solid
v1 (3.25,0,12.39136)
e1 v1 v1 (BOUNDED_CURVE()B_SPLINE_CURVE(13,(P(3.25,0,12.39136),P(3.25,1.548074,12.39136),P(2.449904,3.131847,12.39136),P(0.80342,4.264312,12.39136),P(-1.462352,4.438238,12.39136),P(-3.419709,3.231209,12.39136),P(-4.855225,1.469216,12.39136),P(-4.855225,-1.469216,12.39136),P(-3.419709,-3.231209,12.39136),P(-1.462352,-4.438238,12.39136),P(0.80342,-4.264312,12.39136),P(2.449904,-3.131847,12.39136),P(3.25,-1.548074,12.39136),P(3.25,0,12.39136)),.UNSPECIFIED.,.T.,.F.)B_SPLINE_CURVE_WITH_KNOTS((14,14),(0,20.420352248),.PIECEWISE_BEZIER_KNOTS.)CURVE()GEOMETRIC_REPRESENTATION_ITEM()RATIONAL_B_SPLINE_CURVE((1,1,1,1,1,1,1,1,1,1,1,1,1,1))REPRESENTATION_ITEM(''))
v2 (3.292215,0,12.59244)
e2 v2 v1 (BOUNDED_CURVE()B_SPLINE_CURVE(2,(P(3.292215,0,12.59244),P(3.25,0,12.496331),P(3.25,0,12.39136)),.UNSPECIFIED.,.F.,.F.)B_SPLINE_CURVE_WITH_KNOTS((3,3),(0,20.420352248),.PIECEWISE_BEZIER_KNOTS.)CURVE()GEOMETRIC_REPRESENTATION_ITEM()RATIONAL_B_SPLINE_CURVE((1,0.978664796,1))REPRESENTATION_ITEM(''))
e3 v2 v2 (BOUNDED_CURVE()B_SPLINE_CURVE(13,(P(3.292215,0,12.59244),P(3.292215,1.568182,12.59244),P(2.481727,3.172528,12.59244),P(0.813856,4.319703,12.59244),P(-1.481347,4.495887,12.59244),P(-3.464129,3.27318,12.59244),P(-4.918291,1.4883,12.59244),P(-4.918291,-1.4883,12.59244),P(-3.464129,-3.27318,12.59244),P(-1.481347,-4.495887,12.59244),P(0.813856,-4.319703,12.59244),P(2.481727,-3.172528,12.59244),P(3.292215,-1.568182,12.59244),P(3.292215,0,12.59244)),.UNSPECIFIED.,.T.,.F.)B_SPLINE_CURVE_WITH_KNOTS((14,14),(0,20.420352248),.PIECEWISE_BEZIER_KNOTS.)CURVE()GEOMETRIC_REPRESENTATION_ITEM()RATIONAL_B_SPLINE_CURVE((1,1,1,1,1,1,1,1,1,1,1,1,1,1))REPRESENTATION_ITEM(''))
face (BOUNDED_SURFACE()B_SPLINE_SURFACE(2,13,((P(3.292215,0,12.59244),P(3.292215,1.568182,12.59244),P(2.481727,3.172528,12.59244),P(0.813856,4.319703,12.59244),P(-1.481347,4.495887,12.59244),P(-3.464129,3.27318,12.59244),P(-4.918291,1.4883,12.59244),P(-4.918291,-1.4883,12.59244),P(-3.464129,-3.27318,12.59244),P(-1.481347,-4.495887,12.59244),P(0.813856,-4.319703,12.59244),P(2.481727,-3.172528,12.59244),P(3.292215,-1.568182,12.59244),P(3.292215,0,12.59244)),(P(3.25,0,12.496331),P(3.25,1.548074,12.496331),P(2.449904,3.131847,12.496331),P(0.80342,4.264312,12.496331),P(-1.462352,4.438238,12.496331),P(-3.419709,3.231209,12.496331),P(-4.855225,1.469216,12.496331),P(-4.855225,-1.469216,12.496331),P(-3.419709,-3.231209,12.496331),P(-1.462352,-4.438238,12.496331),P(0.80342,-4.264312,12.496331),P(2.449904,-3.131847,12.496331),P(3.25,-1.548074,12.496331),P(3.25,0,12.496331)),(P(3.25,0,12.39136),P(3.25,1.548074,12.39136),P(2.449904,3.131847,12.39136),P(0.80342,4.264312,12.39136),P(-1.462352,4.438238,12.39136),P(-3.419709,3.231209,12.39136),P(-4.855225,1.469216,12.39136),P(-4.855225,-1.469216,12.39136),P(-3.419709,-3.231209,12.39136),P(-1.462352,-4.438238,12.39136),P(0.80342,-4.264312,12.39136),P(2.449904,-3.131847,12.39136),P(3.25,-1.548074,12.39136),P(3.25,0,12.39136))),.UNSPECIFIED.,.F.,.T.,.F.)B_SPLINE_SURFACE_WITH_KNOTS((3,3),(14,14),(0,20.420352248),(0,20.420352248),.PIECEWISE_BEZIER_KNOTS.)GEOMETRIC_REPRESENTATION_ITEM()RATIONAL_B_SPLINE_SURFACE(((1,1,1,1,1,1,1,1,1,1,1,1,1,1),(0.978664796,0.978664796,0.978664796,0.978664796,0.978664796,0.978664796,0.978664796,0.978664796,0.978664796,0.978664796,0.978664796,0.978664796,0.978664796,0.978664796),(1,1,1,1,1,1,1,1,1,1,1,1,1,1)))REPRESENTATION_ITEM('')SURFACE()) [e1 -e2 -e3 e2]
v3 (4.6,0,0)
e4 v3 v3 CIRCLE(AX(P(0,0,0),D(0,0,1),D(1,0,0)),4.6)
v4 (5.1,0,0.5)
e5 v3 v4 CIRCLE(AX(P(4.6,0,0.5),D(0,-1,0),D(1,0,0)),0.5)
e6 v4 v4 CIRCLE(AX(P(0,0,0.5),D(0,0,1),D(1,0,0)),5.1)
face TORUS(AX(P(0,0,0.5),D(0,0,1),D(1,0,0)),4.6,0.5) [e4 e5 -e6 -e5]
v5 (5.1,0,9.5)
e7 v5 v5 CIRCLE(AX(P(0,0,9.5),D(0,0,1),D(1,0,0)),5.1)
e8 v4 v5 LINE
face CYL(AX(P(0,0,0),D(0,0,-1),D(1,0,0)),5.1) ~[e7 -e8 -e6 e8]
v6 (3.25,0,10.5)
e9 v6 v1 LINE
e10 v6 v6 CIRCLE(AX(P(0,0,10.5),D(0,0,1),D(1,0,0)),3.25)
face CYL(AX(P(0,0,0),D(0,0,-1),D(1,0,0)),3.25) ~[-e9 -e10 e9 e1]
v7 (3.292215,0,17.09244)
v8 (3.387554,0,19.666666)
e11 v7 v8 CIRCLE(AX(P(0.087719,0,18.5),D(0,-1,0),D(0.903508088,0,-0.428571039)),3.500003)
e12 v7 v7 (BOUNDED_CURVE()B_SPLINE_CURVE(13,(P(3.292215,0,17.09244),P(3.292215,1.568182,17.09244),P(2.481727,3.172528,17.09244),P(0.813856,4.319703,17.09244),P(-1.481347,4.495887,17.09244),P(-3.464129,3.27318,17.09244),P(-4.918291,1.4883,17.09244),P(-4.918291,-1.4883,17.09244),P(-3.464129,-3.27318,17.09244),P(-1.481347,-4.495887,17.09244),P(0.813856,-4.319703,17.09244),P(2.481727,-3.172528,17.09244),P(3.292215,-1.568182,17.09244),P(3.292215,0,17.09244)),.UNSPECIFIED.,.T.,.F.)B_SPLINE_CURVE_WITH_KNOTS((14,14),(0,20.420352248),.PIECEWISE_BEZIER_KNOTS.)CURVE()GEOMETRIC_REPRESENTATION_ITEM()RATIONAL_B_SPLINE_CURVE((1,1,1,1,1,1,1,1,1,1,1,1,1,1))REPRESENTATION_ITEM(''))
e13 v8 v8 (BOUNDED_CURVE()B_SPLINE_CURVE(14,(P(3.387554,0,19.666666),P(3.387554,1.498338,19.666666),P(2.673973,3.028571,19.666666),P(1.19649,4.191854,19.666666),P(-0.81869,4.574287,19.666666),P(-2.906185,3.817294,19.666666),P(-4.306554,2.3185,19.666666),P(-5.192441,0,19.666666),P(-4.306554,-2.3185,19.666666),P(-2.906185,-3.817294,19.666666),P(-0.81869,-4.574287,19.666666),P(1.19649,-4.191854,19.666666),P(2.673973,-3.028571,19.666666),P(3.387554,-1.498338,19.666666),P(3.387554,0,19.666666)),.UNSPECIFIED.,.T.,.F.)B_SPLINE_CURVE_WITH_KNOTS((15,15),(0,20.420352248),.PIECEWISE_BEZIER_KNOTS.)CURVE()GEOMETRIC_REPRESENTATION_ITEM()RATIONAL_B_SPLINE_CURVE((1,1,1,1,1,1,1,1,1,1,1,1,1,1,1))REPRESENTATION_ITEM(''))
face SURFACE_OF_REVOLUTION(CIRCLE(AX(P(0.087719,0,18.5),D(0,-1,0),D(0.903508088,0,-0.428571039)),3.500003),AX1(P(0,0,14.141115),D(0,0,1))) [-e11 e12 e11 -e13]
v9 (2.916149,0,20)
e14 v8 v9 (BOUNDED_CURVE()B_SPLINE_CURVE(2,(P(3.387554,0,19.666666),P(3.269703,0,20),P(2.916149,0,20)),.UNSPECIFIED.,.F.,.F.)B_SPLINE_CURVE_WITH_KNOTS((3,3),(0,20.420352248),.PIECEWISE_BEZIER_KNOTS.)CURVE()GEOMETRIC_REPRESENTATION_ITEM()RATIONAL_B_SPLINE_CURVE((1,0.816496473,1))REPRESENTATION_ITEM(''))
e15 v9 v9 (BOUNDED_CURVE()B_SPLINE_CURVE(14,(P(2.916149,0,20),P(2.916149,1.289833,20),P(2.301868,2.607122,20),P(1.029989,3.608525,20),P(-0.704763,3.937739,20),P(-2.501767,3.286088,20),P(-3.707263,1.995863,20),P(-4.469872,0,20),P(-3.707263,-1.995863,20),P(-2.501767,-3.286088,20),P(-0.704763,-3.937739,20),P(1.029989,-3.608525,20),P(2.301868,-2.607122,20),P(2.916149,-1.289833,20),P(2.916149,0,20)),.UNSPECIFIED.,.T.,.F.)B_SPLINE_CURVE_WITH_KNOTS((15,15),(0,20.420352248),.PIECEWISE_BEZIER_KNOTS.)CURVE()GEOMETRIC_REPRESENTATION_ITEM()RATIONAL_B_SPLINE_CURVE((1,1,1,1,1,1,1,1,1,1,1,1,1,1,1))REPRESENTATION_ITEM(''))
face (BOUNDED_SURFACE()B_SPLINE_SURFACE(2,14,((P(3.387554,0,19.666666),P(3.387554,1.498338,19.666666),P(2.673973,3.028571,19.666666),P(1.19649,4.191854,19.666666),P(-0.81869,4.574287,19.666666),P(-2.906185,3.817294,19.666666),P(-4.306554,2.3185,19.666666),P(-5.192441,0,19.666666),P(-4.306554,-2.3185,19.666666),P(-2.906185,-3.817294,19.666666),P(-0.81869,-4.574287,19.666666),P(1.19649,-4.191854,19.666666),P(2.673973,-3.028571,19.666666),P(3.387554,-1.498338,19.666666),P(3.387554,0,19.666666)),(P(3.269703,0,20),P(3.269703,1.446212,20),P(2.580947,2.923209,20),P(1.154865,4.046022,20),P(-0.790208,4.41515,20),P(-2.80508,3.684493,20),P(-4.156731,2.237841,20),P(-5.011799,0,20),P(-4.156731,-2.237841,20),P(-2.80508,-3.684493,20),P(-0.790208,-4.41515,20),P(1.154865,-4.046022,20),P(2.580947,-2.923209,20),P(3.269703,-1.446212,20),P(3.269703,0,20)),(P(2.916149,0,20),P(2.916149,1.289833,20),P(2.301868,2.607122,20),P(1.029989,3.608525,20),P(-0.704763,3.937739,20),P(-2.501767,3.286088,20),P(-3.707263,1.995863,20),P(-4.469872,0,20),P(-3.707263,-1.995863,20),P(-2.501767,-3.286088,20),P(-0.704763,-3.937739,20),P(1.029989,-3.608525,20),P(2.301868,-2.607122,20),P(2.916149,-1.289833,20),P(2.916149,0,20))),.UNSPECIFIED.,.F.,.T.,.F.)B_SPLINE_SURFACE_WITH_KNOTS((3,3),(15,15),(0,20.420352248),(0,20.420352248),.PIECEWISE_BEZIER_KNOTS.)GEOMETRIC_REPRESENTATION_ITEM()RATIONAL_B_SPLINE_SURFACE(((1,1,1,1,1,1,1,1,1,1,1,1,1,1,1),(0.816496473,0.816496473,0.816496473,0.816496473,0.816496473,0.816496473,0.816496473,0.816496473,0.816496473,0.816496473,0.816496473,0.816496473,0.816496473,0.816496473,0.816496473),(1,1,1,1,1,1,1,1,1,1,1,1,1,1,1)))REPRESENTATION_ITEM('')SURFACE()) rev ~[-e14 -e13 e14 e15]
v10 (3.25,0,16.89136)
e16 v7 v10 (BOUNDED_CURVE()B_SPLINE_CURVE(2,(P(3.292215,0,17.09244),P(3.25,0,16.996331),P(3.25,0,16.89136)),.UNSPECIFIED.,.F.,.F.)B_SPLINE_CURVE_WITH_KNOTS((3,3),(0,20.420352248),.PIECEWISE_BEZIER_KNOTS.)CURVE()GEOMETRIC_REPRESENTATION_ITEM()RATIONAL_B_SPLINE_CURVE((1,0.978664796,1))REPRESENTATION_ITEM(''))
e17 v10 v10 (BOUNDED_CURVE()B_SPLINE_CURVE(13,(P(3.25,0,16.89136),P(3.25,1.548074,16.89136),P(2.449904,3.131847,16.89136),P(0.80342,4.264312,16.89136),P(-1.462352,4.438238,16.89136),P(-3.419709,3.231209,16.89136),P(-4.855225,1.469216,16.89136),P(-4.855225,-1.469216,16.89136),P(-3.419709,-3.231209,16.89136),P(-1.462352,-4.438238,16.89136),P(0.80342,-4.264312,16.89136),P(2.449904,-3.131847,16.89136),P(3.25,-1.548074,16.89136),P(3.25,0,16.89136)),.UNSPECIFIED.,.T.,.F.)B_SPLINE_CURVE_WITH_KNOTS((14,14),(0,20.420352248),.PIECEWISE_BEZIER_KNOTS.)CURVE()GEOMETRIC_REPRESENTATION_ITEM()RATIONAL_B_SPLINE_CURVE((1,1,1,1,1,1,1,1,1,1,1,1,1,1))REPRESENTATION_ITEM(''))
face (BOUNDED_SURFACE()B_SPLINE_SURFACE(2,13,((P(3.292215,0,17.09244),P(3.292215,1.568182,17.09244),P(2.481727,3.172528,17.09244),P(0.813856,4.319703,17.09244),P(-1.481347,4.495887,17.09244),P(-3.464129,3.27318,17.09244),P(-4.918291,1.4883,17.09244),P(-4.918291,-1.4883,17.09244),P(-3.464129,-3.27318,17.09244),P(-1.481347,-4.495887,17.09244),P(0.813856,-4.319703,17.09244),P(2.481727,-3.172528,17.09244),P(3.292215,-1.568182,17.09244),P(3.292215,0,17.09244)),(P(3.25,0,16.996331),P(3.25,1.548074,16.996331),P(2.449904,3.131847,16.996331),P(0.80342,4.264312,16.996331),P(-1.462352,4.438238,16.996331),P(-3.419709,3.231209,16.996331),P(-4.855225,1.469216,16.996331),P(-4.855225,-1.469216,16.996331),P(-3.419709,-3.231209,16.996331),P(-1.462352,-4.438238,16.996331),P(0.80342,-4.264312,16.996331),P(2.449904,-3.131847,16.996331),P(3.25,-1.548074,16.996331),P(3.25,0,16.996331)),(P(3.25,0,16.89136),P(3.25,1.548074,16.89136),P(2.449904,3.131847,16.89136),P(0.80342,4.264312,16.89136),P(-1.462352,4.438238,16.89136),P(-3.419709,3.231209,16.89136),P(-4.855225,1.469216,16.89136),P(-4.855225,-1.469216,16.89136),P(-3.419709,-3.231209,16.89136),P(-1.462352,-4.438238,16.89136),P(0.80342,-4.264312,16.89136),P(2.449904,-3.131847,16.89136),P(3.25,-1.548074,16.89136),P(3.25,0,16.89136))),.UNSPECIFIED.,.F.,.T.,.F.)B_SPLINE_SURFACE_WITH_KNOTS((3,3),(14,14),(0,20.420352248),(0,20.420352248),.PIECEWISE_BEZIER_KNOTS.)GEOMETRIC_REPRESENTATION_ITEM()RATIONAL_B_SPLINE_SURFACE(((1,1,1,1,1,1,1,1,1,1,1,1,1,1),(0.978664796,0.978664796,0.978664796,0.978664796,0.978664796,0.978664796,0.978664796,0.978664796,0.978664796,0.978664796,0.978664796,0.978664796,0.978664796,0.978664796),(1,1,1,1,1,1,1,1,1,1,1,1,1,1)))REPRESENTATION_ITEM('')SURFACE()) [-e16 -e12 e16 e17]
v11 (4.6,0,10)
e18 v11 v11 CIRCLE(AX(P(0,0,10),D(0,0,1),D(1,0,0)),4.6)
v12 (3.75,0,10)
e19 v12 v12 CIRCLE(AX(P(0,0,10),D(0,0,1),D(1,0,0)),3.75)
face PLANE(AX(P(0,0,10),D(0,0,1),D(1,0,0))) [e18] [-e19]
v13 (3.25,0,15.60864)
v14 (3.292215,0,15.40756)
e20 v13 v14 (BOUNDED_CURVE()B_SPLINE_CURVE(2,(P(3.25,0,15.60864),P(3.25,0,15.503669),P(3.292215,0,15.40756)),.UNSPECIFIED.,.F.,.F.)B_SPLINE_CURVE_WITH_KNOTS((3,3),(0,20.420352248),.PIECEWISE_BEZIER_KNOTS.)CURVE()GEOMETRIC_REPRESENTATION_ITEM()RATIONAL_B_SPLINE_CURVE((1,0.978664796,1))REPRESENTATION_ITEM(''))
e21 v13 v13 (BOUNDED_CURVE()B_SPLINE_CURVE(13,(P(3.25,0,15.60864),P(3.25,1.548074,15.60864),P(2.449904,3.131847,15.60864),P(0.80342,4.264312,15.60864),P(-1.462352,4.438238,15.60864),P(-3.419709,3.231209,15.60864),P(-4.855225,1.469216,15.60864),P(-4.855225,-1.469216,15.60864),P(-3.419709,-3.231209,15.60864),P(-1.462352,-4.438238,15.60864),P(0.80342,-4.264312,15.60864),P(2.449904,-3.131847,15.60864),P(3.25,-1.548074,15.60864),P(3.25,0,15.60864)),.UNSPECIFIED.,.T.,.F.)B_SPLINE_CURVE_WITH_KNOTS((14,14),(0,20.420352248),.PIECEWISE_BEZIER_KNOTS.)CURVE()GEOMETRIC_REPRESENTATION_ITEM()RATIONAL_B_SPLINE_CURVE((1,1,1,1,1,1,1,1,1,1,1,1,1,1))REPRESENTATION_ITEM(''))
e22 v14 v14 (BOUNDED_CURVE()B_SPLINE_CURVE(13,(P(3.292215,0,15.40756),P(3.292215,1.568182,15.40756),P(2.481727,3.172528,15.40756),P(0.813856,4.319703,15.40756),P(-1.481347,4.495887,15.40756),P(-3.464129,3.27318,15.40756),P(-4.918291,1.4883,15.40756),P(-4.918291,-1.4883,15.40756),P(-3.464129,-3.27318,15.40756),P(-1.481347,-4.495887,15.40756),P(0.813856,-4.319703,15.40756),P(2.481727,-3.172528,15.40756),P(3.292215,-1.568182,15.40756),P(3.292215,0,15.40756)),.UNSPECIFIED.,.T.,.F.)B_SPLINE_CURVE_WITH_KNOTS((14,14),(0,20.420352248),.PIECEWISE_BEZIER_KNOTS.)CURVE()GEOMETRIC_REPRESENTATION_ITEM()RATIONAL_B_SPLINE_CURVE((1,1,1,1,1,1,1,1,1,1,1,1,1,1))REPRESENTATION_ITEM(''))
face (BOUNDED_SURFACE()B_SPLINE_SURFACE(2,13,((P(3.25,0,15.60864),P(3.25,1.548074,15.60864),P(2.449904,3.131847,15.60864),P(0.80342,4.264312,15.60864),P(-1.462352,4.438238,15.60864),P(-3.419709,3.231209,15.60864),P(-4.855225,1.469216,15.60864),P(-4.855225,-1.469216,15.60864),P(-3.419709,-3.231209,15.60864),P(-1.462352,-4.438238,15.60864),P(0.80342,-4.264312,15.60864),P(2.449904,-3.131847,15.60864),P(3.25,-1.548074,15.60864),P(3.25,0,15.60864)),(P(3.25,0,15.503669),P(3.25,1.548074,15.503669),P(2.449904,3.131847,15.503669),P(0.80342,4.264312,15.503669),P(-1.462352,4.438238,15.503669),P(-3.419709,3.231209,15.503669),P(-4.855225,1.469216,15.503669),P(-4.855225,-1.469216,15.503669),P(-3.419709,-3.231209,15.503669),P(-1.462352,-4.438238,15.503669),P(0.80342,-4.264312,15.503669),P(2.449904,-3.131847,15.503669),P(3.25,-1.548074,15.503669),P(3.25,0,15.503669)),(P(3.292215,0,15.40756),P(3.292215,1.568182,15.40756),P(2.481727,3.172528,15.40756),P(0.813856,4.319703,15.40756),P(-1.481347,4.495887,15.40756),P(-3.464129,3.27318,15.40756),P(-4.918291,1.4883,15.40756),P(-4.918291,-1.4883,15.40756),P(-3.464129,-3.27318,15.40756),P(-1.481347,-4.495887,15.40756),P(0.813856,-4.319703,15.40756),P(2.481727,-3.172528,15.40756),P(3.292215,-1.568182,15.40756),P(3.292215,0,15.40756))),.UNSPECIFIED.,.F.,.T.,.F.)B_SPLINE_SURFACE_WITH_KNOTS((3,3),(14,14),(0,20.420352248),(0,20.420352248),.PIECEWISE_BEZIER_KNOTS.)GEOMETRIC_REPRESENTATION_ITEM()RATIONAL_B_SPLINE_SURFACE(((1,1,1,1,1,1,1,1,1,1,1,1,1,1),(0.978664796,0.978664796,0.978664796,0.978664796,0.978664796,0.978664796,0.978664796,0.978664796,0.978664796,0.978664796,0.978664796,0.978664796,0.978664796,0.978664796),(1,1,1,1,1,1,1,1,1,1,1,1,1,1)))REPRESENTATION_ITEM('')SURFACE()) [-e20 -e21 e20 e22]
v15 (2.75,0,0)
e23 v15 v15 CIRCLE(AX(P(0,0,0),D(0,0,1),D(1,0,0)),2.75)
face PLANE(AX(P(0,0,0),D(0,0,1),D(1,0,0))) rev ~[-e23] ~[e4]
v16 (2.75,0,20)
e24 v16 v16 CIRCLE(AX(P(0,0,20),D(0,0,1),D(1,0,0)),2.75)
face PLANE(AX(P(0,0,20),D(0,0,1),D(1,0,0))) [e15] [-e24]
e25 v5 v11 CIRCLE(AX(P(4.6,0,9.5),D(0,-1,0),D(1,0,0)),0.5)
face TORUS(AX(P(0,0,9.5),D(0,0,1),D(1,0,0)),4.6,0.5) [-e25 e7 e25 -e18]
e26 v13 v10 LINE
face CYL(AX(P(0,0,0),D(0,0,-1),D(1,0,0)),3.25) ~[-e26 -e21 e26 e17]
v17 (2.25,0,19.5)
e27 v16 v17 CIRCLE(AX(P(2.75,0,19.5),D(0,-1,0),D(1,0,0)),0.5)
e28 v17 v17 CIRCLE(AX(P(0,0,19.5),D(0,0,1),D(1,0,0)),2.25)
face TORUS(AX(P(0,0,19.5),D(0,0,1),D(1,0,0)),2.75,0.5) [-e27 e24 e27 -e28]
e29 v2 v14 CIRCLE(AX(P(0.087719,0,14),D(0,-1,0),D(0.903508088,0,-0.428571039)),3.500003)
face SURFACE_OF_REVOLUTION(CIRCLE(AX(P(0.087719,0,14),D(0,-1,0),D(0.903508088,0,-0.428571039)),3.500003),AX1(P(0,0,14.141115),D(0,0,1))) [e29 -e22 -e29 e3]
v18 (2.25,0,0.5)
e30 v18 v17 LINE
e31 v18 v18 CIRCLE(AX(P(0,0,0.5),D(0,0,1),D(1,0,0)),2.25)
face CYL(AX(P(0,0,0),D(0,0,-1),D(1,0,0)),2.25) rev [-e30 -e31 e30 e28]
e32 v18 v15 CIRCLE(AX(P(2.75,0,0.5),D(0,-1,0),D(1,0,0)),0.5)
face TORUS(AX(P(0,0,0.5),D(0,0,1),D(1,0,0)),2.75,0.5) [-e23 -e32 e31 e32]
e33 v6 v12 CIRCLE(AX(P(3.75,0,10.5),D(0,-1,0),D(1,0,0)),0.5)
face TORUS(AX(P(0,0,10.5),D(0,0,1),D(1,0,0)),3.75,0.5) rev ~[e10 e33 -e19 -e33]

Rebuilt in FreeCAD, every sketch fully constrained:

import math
import FreeCAD as App
import Part
import Sketcher

V = App.Vector
Q = App.Units.Quantity

doc = App.newDocument("Part")
body = doc.addObject("PartDesign::Body", "Body")

# Sketch on XY plane
sketch1 = body.newObject("Sketcher::SketchObject", "Sketch")
sketch1.AttachmentSupport = (doc.getObject("XY_Plane"), [""])
sketch1.MapMode = "FlatFace"
sketch1.addGeometry([
    Part.Circle(V(0, 0, 0), V(0, 0, 1), 3.2),
    Part.Circle(V(0, 0, 0), V(0, 0, 1), 2.2),
], False)
sketch1.addConstraint([
    Sketcher.Constraint("Coincident", 0, 3, -1, 1),
    Sketcher.Constraint("Coincident", 1, 3, -1, 1),
    Sketcher.Constraint("Diameter", 0, Q("6.5 mm")),
    Sketcher.Constraint("Diameter", 1, Q("4.5 mm")),
])
pad1 = body.newObject("PartDesign::Pad", "Pad")
pad1.Profile = sketch1
pad1.Length = 20

# Sketch on XY plane
sketch2 = body.newObject("Sketcher::SketchObject", "Sketch001")
sketch2.AttachmentSupport = (doc.getObject("XY_Plane"), [""])
sketch2.MapMode = "FlatFace"
sketch2.addGeometry([
    Part.Circle(V(0, 0, 0), V(0, 0, 1), 5.1),
    Part.Circle(V(0, 0, 0), V(0, 0, 1), 3.2),
], False)
sketch2.addConstraint([
    Sketcher.Constraint("Coincident", 0, 3, -1, 1),
    Sketcher.Constraint("Coincident", 1, 3, -1, 1),
    Sketcher.Constraint("Diameter", 0, Q("10.2 mm")),
    Sketcher.Constraint("Diameter", 1, Q("6.5 mm")),
])
pad2 = body.newObject("PartDesign::Pad", "Pad001")
pad2.Profile = sketch2
pad2.Length = 10

# Sketch on XZ plane
sketch3 = body.newObject("Sketcher::SketchObject", "Sketch002")
sketch3.AttachmentSupport = (doc.getObject("XZ_Plane"), [""])
sketch3.MapMode = "FlatFace"
sketch3.addGeometry([
    Part.LineSegment(V(3.2, 20, 0), V(3.2, 17, 0)),
    Part.ArcOfCircle(Part.Circle(V(0.1, 18.5, 0), V(0, 0, 1), 3.5), math.radians(-25), math.radians(25)),
    Part.LineSegment(V(3.2, 15.5, 0), V(3.2, 12.5, 0)),
    Part.ArcOfCircle(Part.Circle(V(0.1, 14, 0), V(0, 0, 1), 3.5), math.radians(-25), math.radians(25)),
], False)
sketch3.addConstraint([
    Sketcher.Constraint("Coincident", 0, 1, 1, 2),
    Sketcher.Constraint("Coincident", 1, 1, 0, 2),
    Sketcher.Constraint("Coincident", 2, 1, 3, 2),
    Sketcher.Constraint("Coincident", 3, 1, 2, 2),
    Sketcher.Constraint("Vertical", 0),
    Sketcher.Constraint("Vertical", 2),
    Sketcher.Constraint("Equal", 1, 3),
    Sketcher.Constraint("Vertical", 1, 3, 3, 3),
    Sketcher.Constraint("Vertical", 1, 1, 2, 1),
    Sketcher.Constraint("DistanceY", 0, 2, 0, 1, Q("3 mm")),
    Sketcher.Constraint("DistanceY", -1, 1, 3, 3, Q("14 mm")),
    Sketcher.Constraint("DistanceY", -1, 1, 0, 1, Q("20 mm")),
    Sketcher.Constraint("DistanceX", -1, 1, 0, 1, Q("3.25 mm")),
    Sketcher.Constraint("Radius", 1, Q("3.500003 mm")),
])
revolution = body.newObject("PartDesign::Revolution", "Revolution")
revolution.Profile = sketch3
revolution.ReferenceAxis = (sketch3, ["V_Axis"])
revolution.Angle = 360
doc.recompute()

fillet = body.newObject("PartDesign::Fillet", "Fillet")
fillet.Base = (revolution, ["Edge1"])
fillet.UseAllEdges = True
fillet.Radius = 0.5

doc.recompute()
